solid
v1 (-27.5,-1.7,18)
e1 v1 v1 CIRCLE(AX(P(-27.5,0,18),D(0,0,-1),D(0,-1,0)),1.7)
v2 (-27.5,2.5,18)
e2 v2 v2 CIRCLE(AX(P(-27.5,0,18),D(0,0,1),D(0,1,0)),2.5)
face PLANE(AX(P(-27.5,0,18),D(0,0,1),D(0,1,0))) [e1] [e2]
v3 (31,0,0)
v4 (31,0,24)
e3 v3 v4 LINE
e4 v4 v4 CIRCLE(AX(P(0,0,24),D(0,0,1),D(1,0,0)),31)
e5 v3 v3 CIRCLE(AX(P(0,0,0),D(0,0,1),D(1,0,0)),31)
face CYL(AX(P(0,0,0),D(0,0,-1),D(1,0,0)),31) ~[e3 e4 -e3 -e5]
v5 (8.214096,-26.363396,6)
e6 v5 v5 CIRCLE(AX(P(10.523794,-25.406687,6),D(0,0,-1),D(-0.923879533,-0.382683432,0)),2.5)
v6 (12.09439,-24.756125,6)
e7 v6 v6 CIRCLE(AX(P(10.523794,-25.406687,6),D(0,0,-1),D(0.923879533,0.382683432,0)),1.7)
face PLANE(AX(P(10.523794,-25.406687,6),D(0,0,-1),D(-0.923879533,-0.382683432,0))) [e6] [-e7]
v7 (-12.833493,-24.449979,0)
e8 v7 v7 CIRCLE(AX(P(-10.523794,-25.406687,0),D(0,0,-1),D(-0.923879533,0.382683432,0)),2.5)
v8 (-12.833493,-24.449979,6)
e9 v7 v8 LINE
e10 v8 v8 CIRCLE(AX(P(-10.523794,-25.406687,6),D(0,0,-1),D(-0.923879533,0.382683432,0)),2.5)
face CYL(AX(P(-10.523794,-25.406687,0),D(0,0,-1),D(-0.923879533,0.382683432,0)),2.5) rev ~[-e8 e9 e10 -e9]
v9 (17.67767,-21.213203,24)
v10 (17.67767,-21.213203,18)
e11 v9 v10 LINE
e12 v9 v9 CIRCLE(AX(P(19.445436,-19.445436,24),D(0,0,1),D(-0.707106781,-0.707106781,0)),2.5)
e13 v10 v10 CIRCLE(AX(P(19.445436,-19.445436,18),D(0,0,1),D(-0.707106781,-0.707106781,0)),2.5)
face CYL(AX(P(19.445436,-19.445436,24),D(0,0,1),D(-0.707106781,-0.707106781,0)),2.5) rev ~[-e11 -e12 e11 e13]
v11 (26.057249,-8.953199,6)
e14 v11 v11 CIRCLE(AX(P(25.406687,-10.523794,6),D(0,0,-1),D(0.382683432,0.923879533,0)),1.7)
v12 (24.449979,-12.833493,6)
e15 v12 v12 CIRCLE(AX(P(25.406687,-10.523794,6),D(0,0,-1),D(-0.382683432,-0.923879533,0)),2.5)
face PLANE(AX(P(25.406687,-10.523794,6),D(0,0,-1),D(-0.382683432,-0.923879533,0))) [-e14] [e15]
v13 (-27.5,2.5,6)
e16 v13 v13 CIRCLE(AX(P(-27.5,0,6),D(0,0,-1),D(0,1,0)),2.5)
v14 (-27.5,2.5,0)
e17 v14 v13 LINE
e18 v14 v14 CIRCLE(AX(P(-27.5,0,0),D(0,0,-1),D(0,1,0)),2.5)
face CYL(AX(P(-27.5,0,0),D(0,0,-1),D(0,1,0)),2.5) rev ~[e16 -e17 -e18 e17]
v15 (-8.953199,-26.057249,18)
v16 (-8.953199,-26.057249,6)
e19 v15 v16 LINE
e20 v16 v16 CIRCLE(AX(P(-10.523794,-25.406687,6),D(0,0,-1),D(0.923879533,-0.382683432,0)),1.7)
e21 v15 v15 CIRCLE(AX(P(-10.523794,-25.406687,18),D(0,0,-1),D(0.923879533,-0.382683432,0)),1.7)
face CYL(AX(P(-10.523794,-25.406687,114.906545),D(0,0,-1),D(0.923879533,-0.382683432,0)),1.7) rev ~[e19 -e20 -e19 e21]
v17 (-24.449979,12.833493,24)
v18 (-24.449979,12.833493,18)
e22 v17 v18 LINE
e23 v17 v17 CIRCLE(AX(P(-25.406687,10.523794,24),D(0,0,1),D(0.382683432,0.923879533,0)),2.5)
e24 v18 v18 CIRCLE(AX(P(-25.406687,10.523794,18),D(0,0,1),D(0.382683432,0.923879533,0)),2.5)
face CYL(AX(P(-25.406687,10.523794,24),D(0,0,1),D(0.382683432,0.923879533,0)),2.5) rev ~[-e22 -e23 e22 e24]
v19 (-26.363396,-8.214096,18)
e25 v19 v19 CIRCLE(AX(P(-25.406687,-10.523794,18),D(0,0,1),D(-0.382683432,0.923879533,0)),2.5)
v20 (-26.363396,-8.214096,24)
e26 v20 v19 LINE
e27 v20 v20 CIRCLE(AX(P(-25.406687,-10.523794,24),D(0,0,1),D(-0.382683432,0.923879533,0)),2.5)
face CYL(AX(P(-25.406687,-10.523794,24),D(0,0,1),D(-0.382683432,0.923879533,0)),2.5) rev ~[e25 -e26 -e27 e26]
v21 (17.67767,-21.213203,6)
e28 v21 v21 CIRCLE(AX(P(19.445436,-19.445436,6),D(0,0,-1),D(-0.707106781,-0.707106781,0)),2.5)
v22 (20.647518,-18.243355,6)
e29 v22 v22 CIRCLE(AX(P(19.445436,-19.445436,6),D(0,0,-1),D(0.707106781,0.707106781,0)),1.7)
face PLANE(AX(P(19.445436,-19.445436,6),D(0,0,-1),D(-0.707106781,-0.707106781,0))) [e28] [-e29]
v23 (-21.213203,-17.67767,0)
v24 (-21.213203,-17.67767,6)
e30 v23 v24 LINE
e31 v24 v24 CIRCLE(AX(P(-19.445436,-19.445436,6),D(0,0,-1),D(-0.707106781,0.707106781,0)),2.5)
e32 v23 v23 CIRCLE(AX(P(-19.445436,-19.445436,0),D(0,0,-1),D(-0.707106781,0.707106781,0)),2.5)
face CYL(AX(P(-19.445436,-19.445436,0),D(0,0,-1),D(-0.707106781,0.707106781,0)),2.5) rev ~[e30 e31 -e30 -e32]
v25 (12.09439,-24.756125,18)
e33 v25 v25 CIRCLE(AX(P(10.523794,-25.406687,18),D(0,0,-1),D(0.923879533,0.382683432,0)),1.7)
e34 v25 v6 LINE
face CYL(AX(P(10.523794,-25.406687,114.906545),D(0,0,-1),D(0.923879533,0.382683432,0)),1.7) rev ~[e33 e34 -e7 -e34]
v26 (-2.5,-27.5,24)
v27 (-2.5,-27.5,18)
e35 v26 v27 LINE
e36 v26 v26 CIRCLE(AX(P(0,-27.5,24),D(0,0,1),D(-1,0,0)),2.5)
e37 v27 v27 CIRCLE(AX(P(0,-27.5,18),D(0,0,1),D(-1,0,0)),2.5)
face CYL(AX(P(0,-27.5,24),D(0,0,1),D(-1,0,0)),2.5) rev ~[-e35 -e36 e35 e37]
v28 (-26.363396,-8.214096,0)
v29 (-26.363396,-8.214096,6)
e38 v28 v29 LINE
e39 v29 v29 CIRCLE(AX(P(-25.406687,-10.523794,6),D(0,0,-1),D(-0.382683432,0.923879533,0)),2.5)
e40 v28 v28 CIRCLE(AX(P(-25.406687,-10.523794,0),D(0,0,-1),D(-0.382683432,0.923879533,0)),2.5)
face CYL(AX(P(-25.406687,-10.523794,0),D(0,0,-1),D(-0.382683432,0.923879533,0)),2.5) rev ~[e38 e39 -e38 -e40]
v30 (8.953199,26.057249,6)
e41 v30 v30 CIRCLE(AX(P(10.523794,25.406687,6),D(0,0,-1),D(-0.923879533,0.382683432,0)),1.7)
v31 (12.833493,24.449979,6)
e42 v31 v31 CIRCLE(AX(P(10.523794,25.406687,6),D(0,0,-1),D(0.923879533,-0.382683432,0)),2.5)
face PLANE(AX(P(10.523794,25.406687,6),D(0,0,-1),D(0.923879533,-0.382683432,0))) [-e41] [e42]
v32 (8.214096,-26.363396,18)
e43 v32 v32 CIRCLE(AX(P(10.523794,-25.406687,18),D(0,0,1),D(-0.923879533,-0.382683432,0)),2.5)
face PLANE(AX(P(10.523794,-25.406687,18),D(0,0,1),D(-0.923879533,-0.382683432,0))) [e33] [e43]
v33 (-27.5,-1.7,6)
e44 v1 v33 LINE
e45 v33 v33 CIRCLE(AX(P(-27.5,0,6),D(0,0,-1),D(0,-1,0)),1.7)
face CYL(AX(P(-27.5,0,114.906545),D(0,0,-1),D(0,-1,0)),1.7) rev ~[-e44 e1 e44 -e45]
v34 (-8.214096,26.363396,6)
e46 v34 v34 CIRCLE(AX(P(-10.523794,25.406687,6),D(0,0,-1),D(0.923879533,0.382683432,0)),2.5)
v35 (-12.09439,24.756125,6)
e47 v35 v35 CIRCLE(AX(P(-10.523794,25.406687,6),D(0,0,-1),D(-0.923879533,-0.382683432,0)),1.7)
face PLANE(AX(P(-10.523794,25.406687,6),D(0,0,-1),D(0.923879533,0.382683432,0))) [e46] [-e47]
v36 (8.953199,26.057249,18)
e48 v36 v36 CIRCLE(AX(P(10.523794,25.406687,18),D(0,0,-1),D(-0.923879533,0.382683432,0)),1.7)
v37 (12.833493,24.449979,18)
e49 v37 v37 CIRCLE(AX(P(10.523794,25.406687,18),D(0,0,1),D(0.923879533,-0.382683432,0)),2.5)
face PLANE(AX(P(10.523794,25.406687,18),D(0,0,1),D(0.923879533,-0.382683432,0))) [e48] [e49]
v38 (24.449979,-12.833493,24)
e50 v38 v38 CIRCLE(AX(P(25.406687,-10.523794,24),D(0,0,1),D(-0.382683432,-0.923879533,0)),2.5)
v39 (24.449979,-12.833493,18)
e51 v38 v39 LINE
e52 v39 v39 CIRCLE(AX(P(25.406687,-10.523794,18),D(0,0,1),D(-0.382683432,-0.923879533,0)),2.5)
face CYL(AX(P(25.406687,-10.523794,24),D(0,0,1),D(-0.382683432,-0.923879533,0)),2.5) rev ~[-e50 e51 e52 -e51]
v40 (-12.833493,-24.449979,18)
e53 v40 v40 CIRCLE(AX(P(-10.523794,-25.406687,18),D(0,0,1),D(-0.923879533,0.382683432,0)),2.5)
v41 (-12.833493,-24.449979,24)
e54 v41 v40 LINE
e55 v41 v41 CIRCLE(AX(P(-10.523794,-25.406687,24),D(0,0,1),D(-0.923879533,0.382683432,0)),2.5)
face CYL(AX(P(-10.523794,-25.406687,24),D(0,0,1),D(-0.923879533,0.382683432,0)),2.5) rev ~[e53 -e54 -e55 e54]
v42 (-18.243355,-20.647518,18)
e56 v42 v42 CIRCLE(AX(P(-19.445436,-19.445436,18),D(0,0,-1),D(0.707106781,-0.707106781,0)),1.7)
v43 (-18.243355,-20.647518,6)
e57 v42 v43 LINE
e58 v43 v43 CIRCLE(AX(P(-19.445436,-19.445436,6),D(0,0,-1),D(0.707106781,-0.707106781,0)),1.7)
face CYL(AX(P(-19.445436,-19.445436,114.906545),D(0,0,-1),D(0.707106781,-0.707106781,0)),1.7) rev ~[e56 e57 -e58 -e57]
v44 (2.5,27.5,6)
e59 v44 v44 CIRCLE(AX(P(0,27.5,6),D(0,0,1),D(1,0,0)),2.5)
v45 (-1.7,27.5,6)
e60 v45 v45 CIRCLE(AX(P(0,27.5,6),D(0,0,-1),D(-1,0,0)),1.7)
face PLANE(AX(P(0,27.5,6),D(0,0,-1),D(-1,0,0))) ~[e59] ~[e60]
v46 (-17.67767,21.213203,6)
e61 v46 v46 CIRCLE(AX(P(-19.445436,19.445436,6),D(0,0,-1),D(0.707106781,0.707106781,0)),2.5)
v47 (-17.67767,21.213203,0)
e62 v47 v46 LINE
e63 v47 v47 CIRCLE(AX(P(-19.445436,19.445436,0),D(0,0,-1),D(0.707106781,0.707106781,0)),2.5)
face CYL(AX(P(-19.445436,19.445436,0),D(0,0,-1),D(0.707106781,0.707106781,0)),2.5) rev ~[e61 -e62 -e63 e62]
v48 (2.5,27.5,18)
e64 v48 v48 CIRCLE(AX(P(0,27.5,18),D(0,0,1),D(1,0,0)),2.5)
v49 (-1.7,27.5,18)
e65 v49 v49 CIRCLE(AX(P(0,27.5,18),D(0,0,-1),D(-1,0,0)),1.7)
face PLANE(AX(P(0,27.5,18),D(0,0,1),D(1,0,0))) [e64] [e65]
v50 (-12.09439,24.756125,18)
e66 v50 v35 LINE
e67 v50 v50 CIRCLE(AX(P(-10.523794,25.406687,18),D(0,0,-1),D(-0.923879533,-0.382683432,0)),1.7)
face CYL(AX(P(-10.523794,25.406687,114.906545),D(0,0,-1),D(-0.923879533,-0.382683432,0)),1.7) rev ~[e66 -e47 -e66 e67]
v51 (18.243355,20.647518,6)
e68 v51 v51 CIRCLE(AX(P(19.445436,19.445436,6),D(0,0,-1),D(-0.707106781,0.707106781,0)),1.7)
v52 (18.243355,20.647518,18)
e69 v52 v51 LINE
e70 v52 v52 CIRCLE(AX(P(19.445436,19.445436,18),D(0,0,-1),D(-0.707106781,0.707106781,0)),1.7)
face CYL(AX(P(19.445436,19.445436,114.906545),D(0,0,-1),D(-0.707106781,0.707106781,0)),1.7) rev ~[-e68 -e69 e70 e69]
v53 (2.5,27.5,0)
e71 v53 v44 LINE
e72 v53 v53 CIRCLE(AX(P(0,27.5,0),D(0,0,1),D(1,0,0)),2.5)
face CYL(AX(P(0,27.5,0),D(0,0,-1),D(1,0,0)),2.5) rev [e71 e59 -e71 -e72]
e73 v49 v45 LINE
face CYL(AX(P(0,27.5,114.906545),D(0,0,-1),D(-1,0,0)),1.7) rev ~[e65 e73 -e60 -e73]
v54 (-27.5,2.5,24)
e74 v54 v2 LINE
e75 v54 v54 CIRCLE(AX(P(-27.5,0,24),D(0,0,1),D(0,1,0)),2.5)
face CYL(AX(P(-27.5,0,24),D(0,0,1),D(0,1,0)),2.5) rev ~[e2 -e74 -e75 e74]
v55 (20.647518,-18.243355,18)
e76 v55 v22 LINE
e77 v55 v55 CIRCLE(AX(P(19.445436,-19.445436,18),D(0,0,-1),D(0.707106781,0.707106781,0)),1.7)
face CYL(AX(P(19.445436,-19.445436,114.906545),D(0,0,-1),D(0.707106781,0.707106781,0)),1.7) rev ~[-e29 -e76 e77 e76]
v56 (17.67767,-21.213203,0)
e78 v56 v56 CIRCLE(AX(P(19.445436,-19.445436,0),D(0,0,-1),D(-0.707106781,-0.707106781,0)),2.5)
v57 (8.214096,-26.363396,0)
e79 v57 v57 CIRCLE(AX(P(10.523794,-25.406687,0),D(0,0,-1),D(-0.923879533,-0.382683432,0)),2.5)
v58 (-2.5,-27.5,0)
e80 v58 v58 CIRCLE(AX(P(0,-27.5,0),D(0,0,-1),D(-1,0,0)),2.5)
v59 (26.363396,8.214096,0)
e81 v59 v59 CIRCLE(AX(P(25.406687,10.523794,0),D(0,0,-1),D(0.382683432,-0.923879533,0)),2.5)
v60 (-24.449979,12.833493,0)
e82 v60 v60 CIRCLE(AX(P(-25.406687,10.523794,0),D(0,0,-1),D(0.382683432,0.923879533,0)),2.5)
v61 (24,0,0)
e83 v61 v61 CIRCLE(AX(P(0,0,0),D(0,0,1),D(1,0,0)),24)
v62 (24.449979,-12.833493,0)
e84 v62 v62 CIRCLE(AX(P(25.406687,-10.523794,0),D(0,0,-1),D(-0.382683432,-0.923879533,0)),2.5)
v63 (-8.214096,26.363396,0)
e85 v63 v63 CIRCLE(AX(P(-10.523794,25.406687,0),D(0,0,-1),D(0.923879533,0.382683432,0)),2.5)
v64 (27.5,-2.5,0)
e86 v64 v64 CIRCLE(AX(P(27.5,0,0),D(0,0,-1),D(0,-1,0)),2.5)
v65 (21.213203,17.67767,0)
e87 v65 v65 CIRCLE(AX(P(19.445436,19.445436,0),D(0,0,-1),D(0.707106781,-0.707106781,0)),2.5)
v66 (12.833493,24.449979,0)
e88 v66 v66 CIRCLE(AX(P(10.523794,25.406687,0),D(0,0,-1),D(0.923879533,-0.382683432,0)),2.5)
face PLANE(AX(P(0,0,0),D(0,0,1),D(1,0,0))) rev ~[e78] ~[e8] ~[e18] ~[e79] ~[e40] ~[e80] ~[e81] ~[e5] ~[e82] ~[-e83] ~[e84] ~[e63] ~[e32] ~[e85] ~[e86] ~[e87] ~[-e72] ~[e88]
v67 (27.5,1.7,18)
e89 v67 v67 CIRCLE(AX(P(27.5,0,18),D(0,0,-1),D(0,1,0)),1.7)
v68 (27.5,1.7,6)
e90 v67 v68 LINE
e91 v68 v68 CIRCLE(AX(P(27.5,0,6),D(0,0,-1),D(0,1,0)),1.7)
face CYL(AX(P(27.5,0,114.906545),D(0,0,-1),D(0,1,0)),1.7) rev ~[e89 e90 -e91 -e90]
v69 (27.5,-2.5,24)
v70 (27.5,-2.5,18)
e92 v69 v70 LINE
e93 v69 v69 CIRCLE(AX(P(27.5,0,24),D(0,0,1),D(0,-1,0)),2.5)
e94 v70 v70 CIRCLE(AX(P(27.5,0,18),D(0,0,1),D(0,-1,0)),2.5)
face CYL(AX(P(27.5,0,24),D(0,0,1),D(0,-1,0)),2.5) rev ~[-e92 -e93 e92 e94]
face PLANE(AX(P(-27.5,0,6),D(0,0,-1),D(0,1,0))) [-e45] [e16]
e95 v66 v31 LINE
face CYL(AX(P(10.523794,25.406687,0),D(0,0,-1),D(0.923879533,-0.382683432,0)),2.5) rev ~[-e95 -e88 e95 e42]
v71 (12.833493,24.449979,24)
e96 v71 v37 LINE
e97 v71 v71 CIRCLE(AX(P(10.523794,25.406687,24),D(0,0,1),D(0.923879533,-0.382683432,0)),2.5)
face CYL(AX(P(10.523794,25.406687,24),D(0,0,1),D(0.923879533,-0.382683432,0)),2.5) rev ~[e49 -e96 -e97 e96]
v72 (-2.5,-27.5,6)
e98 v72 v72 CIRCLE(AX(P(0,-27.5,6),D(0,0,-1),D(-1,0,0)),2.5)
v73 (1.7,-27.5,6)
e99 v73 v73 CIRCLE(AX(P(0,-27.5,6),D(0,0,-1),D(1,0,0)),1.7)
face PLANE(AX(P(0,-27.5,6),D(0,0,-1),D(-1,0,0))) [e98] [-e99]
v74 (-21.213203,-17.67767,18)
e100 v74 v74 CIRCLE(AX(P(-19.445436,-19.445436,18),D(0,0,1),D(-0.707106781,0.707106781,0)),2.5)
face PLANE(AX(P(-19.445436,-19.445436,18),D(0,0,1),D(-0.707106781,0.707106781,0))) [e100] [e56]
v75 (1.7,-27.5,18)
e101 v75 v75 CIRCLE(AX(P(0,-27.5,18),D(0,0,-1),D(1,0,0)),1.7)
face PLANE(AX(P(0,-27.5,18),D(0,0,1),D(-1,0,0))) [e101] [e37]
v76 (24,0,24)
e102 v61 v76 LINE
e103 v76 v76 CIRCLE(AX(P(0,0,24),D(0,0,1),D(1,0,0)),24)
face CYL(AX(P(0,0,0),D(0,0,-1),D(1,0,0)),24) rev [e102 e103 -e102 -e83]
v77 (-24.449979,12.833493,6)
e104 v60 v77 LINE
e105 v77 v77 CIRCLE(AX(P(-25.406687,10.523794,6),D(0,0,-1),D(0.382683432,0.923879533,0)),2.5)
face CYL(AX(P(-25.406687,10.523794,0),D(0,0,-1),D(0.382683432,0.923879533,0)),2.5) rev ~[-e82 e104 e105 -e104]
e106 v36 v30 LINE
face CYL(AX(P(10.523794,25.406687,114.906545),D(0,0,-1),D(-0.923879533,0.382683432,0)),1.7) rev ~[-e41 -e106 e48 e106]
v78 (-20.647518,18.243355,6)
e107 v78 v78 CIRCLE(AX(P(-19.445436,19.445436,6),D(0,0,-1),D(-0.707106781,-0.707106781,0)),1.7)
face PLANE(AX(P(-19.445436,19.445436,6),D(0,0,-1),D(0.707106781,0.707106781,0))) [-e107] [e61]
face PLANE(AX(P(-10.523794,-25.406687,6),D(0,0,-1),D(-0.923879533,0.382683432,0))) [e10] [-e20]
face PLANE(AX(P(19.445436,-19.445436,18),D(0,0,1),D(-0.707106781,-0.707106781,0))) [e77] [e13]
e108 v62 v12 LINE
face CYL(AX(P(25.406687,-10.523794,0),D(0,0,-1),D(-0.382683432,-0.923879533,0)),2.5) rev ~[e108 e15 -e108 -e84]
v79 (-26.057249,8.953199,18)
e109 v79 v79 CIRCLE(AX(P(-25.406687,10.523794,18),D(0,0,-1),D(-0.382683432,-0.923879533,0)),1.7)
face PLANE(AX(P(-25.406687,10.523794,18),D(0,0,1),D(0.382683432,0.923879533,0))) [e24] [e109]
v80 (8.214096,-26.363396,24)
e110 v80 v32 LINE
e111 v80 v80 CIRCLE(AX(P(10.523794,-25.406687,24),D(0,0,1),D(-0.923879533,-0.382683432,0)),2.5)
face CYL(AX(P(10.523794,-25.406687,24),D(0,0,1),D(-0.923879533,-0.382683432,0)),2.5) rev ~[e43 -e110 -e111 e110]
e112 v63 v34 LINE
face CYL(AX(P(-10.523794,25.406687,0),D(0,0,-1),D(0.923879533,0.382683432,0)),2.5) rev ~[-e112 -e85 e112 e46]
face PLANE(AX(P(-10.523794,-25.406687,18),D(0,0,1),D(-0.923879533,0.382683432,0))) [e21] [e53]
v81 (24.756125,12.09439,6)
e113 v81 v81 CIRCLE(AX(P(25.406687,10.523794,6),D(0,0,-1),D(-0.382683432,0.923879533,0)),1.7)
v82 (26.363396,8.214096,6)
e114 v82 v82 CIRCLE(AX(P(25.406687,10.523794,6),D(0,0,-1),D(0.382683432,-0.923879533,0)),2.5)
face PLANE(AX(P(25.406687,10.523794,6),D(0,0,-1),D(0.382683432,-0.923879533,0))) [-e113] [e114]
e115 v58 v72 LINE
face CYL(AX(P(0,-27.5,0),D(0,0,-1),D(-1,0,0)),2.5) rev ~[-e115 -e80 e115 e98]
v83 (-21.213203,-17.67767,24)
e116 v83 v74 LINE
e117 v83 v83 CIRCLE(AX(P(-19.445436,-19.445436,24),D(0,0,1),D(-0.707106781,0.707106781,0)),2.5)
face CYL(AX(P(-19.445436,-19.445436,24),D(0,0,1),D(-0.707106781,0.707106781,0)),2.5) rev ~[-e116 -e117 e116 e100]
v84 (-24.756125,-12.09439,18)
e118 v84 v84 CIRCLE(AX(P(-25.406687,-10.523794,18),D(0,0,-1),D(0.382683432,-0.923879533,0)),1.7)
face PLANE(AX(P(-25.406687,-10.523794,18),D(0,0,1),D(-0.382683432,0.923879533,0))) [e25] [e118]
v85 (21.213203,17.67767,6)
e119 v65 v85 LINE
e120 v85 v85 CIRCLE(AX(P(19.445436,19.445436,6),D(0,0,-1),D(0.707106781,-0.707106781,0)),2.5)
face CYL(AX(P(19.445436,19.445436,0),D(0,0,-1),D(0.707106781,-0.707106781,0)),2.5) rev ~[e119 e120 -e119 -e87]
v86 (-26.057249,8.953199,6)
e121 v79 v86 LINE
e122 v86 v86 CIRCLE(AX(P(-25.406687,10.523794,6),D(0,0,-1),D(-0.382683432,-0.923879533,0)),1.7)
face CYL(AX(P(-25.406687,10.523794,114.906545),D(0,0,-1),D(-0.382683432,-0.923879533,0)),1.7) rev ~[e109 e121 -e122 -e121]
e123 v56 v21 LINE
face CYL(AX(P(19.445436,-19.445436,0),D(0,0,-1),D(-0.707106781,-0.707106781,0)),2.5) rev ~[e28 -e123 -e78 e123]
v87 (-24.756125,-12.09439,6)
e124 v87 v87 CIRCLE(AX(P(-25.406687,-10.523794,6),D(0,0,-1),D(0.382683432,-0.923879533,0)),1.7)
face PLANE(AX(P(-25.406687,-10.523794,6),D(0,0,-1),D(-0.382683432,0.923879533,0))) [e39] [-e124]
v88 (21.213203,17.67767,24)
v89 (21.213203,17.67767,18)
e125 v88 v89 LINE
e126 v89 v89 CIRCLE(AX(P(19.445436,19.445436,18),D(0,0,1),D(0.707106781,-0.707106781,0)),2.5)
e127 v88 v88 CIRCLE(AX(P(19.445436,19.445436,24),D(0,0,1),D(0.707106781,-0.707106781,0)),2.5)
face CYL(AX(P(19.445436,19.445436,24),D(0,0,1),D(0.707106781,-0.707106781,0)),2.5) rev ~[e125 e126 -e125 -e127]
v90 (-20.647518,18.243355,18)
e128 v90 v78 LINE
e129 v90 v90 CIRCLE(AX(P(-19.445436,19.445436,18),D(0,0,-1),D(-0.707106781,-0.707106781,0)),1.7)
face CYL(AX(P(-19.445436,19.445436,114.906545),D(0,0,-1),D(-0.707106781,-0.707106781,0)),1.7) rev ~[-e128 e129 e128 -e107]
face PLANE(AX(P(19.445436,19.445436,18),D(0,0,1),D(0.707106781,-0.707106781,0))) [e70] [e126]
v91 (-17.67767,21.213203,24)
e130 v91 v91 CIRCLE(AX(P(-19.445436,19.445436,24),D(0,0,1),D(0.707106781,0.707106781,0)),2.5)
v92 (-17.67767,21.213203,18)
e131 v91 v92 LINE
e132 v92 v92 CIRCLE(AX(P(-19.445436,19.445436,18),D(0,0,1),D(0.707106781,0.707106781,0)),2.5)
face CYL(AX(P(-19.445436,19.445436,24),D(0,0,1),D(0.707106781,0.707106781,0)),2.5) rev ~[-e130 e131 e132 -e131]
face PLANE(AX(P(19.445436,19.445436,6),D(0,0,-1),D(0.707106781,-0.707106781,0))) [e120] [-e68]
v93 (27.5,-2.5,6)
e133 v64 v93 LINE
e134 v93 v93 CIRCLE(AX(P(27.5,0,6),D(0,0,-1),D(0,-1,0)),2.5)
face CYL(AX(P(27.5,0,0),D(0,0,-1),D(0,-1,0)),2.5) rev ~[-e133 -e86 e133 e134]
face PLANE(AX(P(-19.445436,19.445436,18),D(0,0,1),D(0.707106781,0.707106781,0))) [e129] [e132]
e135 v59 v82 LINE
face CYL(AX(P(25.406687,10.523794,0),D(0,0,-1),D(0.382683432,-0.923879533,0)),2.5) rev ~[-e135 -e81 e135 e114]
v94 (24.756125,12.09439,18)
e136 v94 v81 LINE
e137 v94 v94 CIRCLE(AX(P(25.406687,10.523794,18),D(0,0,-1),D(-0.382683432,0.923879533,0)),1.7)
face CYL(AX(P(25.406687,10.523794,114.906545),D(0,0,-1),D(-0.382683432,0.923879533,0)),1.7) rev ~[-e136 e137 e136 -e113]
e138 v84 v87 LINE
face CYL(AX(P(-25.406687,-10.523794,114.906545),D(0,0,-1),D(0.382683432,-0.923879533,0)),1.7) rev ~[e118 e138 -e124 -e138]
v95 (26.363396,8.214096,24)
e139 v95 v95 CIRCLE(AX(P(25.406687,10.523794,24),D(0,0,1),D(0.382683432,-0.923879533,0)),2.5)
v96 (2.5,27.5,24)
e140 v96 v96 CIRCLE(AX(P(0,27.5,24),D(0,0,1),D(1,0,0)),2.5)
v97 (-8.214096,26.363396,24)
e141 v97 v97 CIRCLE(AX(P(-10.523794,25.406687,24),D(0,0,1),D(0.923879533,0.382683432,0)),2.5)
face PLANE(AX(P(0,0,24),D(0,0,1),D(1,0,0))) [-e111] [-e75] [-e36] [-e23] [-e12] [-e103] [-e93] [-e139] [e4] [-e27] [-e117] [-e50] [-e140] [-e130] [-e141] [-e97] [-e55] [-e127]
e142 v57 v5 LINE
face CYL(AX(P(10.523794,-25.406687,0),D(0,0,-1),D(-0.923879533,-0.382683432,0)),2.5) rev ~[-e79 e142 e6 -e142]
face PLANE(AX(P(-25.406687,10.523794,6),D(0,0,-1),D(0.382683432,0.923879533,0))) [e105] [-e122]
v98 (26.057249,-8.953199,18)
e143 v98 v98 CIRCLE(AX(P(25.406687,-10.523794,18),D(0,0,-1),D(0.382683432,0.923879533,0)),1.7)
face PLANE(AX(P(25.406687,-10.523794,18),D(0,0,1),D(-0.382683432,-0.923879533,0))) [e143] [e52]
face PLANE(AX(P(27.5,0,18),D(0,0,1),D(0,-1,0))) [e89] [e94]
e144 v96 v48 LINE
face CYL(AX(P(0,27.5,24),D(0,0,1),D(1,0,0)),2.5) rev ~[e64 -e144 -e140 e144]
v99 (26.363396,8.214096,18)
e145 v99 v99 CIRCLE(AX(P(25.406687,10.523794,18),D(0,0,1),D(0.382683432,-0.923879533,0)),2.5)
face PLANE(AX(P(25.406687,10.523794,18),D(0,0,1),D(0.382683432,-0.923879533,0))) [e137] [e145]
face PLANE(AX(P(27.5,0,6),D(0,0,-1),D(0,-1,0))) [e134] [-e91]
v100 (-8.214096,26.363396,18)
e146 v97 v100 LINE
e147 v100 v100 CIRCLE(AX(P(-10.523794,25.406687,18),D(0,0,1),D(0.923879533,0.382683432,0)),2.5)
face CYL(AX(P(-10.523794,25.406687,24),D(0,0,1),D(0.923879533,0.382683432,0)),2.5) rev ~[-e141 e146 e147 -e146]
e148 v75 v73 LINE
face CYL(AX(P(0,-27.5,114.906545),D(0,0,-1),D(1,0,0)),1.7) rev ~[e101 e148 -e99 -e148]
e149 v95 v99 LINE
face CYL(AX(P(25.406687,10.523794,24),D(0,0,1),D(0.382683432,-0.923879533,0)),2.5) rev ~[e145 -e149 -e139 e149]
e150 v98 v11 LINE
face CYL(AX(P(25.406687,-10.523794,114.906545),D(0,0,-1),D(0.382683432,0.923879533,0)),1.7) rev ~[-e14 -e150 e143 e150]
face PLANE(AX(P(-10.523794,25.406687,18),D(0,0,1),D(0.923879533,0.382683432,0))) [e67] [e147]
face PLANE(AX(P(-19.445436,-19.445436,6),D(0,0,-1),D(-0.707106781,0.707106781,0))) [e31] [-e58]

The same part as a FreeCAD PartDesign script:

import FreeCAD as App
import Part
import Sketcher
from FreeCAD import Vector

doc = App.newDocument("Part")
body = doc.addObject("PartDesign::Body", "Body")

# Sketch on XY plane
sketch1 = body.newObject("Sketcher::SketchObject", "Sketch")
sketch1.AttachmentSupport = (doc.getObject("XY_Plane"), [""])
sketch1.MapMode = "FlatFace"
sketch1.addGeometry([
    Part.Circle(Vector(0, 0, 0), Vector(0, 0, 1), 31),
    Part.Circle(Vector(0, 0, 0), Vector(0, 0, 1), 24),
], False)
sketch1.addConstraint([
    Sketcher.Constraint("Coincident", 0, 3, -1, 1),
    Sketcher.Constraint("Coincident", 1, 3, -1, 1),
    Sketcher.Constraint("Diameter", 0, 62.0),
    Sketcher.Constraint("Diameter", 1, 48.0),
])
pad1 = body.newObject("PartDesign::Pad", "Pad")
pad1.Profile = sketch1
pad1.Length = 24

# Sketch on XY plane
sketch2 = body.newObject("Sketcher::SketchObject", "Sketch001")
sketch2.AttachmentSupport = (doc.getObject("XY_Plane"), [""])
sketch2.MapMode = "FlatFace"
sketch2.AttachmentOffset = App.Placement(Vector(0, 0, 24), App.Rotation())
sketch2.addGeometry(Part.Circle(Vector(0, 27.5, 0), Vector(0, 0, 1), 1.7), False)
sketch2.addConstraint([
    Sketcher.Constraint("PointOnObject", 0, 3, -2),
    Sketcher.Constraint("Diameter", 0, 3.4),
    Sketcher.Constraint("DistanceY", -1, 1, 0, 3, 27.5),
])
doc.recompute()
hole = body.newObject("PartDesign::Hole", "Hole")
hole.Profile = sketch2
hole.ThreadType = "None"
hole.Diameter = 3.4
hole.DepthType = "ThroughAll"

# Sketch on XY plane
sketch3 = body.newObject("Sketcher::SketchObject", "Sketch002")
sketch3.AttachmentSupport = (doc.getObject("XY_Plane"), [""])
sketch3.MapMode = "FlatFace"
sketch3.AttachmentOffset = App.Placement(Vector(0, 0, 24), App.Rotation())
sketch3.addGeometry(Part.Circle(Vector(0, 27.5, 0), Vector(0, 0, 1), 2.5), False)
sketch3.addConstraint([
    Sketcher.Constraint("PointOnObject", 0, 3, -2),
    Sketcher.Constraint("Diameter", 0, 5.0),
    Sketcher.Constraint("DistanceY", -1, 1, 0, 3, 27.5),
])
pocket1 = body.newObject("PartDesign::Pocket", "Pocket")
pocket1.Profile = sketch3
pocket1.Length = 6
doc.recompute()

polarpattern = body.newObject("PartDesign::PolarPattern", "PolarPattern")
polarpattern.Originals = [hole, pocket1]
polarpattern.Axis = (doc.getObject("Z_Axis"), [""])
polarpattern.Angle = 360
polarpattern.Occurrences = 16
body.Tip = polarpattern
doc.recompute()

datumplane = body.newObject("PartDesign::Plane", "DatumPlane")
datumplane.AttachmentSupport = (doc.getObject("XY_Plane"), [""])
datumplane.MapMode = "FlatFace"
datumplane.AttachmentOffset = App.Placement(Vector(0, 0, 12), App.Rotation())
mirrored = body.newObject("PartDesign::Mirrored", "Mirrored")
mirrored.Originals = [pocket1]
mirrored.MirrorPlane = (datumplane, [""])
body.Tip = mirrored

# Sketch on XY plane
sketch4 = body.newObject("Sketcher::SketchObject", "Sketch003")
sketch4.AttachmentSupport = (doc.getObject("XY_Plane"), [""])
sketch4.MapMode = "FlatFace"
sketch4.addGeometry(Part.Circle(Vector(-10.5, 25.4, 0), Vector(0, 0, 1), 1.7), False)
sketch4.addConstraint([
    Sketcher.Constraint("Diameter", 0, 3.4),
    Sketcher.Constraint("DistanceX", 0, 3, -1, 1, 10.523794),
    Sketcher.Constraint("DistanceY", -1, 1, 0, 3, 25.406687),
])
doc.recompute()
hole2 = body.newObject("PartDesign::Hole", "Hole001")
hole2.Profile = sketch4
hole2.ThreadType = "None"
hole2.Diameter = 3.4
hole2.DepthType = "ThroughAll"
hole2.Reversed = True

# Sketch on XY plane
sketch5 = body.newObject("Sketcher::SketchObject", "Sketch004")
sketch5.AttachmentSupport = (doc.getObject("XY_Plane"), [""])
sketch5.MapMode = "FlatFace"
sketch5.addGeometry(Part.Circle(Vector(-19.4, 19.4, 0), Vector(0, 0, 1), 1.7), False)
sketch5.addConstraint([
    Sketcher.Constraint("Diameter", 0, 3.4),
    Sketcher.Constraint("DistanceX", 0, 3, -1, 1, 19.445436),
    Sketcher.Constraint("DistanceY", -1, 1, 0, 3, 19.445436),
])
doc.recompute()
hole3 = body.newObject("PartDesign::Hole", "Hole002")
hole3.Profile = sketch5
hole3.ThreadType = "None"
hole3.Diameter = 3.4
hole3.DepthType = "ThroughAll"
hole3.Reversed = True

# Sketch on XY plane
sketch6 = body.newObject("Sketcher::SketchObject", "Sketch005")
sketch6.AttachmentSupport = (doc.getObject("XY_Plane"), [""])
sketch6.MapMode = "FlatFace"
sketch6.addGeometry(Part.Circle(Vector(-25.4, 10.5, 0), Vector(0, 0, 1), 1.7), False)
sketch6.addConstraint([
    Sketcher.Constraint("Diameter", 0, 3.4),
    Sketcher.Constraint("DistanceX", 0, 3, -1, 1, 25.406687),
    Sketcher.Constraint("DistanceY", -1, 1, 0, 3, 10.523794),
])
doc.recompute()
hole4 = body.newObject("PartDesign::Hole", "Hole003")
hole4.Profile = sketch6
hole4.ThreadType = "None"
hole4.Diameter = 3.4
hole4.DepthType = "ThroughAll"
hole4.Reversed = True

# Sketch on XY plane
sketch7 = body.newObject("Sketcher::SketchObject", "Sketch006")
sketch7.AttachmentSupport = (doc.getObject("XY_Plane"), [""])
sketch7.MapMode = "FlatFace"
sketch7.addGeometry(Part.Circle(Vector(-27.5, 0, 0), Vector(0, 0, 1), 1.7), False)
sketch7.addConstraint([
    Sketcher.Constraint("PointOnObject", 0, 3, -1),
    Sketcher.Constraint("Diameter", 0, 3.4),
    Sketcher.Constraint("DistanceX", 0, 3, -1, 1, 27.5),
])
doc.recompute()
hole5 = body.newObject("PartDesign::Hole", "Hole004")
hole5.Profile = sketch7
hole5.ThreadType = "None"
hole5.Diameter = 3.4
hole5.DepthType = "ThroughAll"
hole5.Reversed = True

# Sketch on XY plane
sketch8 = body.newObject("Sketcher::SketchObject", "Sketch007")
sketch8.AttachmentSupport = (doc.getObject("XY_Plane"), [""])
sketch8.MapMode = "FlatFace"
sketch8.addGeometry(Part.Circle(Vector(-25.4, -10.5, 0), Vector(0, 0, 1), 1.7), False)
sketch8.addConstraint([
    Sketcher.Constraint("Diameter", 0, 3.4),
    Sketcher.Constraint("DistanceX", 0, 3, -1, 1, 25.406687),
    Sketcher.Constraint("DistanceY", 0, 3, -1, 1, 10.523794),
])
doc.recompute()
hole6 = body.newObject("PartDesign::Hole", "Hole005")
hole6.Profile = sketch8
hole6.ThreadType = "None"
hole6.Diameter = 3.4
hole6.DepthType = "ThroughAll"
hole6.Reversed = True

# Sketch on XY plane
sketch9 = body.newObject("Sketcher::SketchObject", "Sketch008")
sketch9.AttachmentSupport = (doc.getObject("XY_Plane"), [""])
sketch9.MapMode = "FlatFace"
sketch9.addGeometry(Part.Circle(Vector(-19.4, -19.4, 0), Vector(0, 0, 1), 1.7), False)
sketch9.addConstraint([
    Sketcher.Constraint("Diameter", 0, 3.4),
    Sketcher.Constraint("DistanceX", 0, 3, -1, 1, 19.445436),
    Sketcher.Constraint("DistanceY", 0, 3, -1, 1, 19.445436),
])
doc.recompute()
hole7 = body.newObject("PartDesign::Hole", "Hole006")
hole7.Profile = sketch9
hole7.ThreadType = "None"
hole7.Diameter = 3.4
hole7.DepthType = "ThroughAll"
hole7.Reversed = True

# Sketch on XY plane
sketch10 = body.newObject("Sketcher::SketchObject", "Sketch009")
sketch10.AttachmentSupport = (doc.getObject("XY_Plane"), [""])
sketch10.MapMode = "FlatFace"
sketch10.addGeometry(Part.Circle(Vector(-10.5, -25.4, 0), Vector(0, 0, 1), 1.7), False)
sketch10.addConstraint([
    Sketcher.Constraint("Diameter", 0, 3.4),
    Sketcher.Constraint("DistanceX", 0, 3, -1, 1, 10.523794),
    Sketcher.Constraint("DistanceY", 0, 3, -1, 1, 25.406687),
])
doc.recompute()
hole8 = body.newObject("PartDesign::Hole", "Hole007")
hole8.Profile = sketch10
hole8.ThreadType = "None"
hole8.Diameter = 3.4
hole8.DepthType = "ThroughAll"
hole8.Reversed = True

# Sketch on XY plane
sketch11 = body.newObject("Sketcher::SketchObject", "Sketch010")
sketch11.AttachmentSupport = (doc.getObject("XY_Plane"), [""])
sketch11.MapMode = "FlatFace"
sketch11.addGeometry(Part.Circle(Vector(0, -27.5, 0), Vector(0, 0, 1), 1.7), False)
sketch11.addConstraint([
    Sketcher.Constraint("PointOnObject", 0, 3, -2),
    Sketcher.Constraint("Diameter", 0, 3.4),
    Sketcher.Constraint("DistanceY", 0, 3, -1, 1, 27.5),
])
doc.recompute()
hole9 = body.newObject("PartDesign::Hole", "Hole008")
hole9.Profile = sketch11
hole9.ThreadType = "None"
hole9.Diameter = 3.4
hole9.DepthType = "ThroughAll"
hole9.Reversed = True

# Sketch on XY plane
sketch12 = body.newObject("Sketcher::SketchObject", "Sketch011")
sketch12.AttachmentSupport = (doc.getObject("XY_Plane"), [""])
sketch12.MapMode = "FlatFace"
sketch12.addGeometry(Part.Circle(Vector(10.5, -25.4, 0), Vector(0, 0, 1), 1.7), False)
sketch12.addConstraint([
    Sketcher.Constraint("Diameter", 0, 3.4),
    Sketcher.Constraint("DistanceX", -1, 1, 0, 3, 10.523794),
    Sketcher.Constraint("DistanceY", 0, 3, -1, 1, 25.406687),
])
doc.recompute()
hole10 = body.newObject("PartDesign::Hole", "Hole009")
hole10.Profile = sketch12
hole10.ThreadType = "None"
hole10.Diameter = 3.4
hole10.DepthType = "ThroughAll"
hole10.Reversed = True

# Sketch on XY plane
sketch13 = body.newObject("Sketcher::SketchObject", "Sketch012")
sketch13.AttachmentSupport = (doc.getObject("XY_Plane"), [""])
sketch13.MapMode = "FlatFace"
sketch13.addGeometry(Part.Circle(Vector(19.4, -19.4, 0), Vector(0, 0, 1), 1.7), False)
sketch13.addConstraint([
    Sketcher.Constraint("Diameter", 0, 3.4),
    Sketcher.Constraint("DistanceX", -1, 1, 0, 3, 19.445436),
    Sketcher.Constraint("DistanceY", 0, 3, -1, 1, 19.445436),
])
doc.recompute()
hole11 = body.newObject("PartDesign::Hole", "Hole010")
hole11.Profile = sketch13
hole11.ThreadType = "None"
hole11.Diameter = 3.4
hole11.DepthType = "ThroughAll"
hole11.Reversed = True

# Sketch on XY plane
sketch14 = body.newObject("Sketcher::SketchObject", "Sketch013")
sketch14.AttachmentSupport = (doc.getObject("XY_Plane"), [""])
sketch14.MapMode = "FlatFace"
sketch14.addGeometry(Part.Circle(Vector(25.4, -10.5, 0), Vector(0, 0, 1), 1.7), False)
sketch14.addConstraint([
    Sketcher.Constraint("Diameter", 0, 3.4),
    Sketcher.Constraint("DistanceX", -1, 1, 0, 3, 25.406687),
    Sketcher.Constraint("DistanceY", 0, 3, -1, 1, 10.523794),
])
doc.recompute()
hole12 = body.newObject("PartDesign::Hole", "Hole011")
hole12.Profile = sketch14
hole12.ThreadType = "None"
hole12.Diameter = 3.4
hole12.DepthType = "ThroughAll"
hole12.Reversed = True

# Sketch on XY plane
sketch15 = body.newObject("Sketcher::SketchObject", "Sketch014")
sketch15.AttachmentSupport = (doc.getObject("XY_Plane"), [""])
sketch15.MapMode = "FlatFace"
sketch15.addGeometry(Part.Circle(Vector(27.5, 0, 0), Vector(0, 0, 1), 1.7), False)
sketch15.addConstraint([
    Sketcher.Constraint("PointOnObject", 0, 3, -1),
    Sketcher.Constraint("Diameter", 0, 3.4),
    Sketcher.Constraint("DistanceX", -1, 1, 0, 3, 27.5),
])
doc.recompute()
hole13 = body.newObject("PartDesign::Hole", "Hole012")
hole13.Profile = sketch15
hole13.ThreadType = "None"
hole13.Diameter = 3.4
hole13.DepthType = "ThroughAll"
hole13.Reversed = True

# Sketch on XY plane
sketch16 = body.newObject("Sketcher::SketchObject", "Sketch015")
sketch16.AttachmentSupport = (doc.getObject("XY_Plane"), [""])
sketch16.MapMode = "FlatFace"
sketch16.addGeometry(Part.Circle(Vector(25.4, 10.5, 0), Vector(0, 0, 1), 1.7), False)
sketch16.addConstraint([
    Sketcher.Constraint("Diameter", 0, 3.4),
    Sketcher.Constraint("DistanceX", -1, 1, 0, 3, 25.406687),
    Sketcher.Constraint("DistanceY", -1, 1, 0, 3, 10.523794),
])
doc.recompute()
hole14 = body.newObject("PartDesign::Hole", "Hole013")
hole14.Profile = sketch16
hole14.ThreadType = "None"
hole14.Diameter = 3.4
hole14.DepthType = "ThroughAll"
hole14.Reversed = True

# Sketch on XY plane
sketch17 = body.newObject("Sketcher::SketchObject", "Sketch016")
sketch17.AttachmentSupport = (doc.getObject("XY_Plane"), [""])
sketch17.MapMode = "FlatFace"
sketch17.addGeometry(Part.Circle(Vector(19.4, 19.4, 0), Vector(0, 0, 1), 1.7), False)
sketch17.addConstraint([
    Sketcher.Constraint("Diameter", 0, 3.4),
    Sketcher.Constraint("DistanceX", -1, 1, 0, 3, 19.445436),
    Sketcher.Constraint("DistanceY", -1, 1, 0, 3, 19.445436),
])
doc.recompute()
hole15 = body.newObject("PartDesign::Hole", "Hole014")
hole15.Profile = sketch17
hole15.ThreadType = "None"
hole15.Diameter = 3.4
hole15.DepthType = "ThroughAll"
hole15.Reversed = True

# Sketch on XY plane
sketch18 = body.newObject("Sketcher::SketchObject", "Sketch017")
sketch18.AttachmentSupport = (doc.getObject("XY_Plane"), [""])
sketch18.MapMode = "FlatFace"
sketch18.addGeometry(Part.Circle(Vector(10.5, 25.4, 0), Vector(0, 0, 1), 1.7), False)
sketch18.addConstraint([
    Sketcher.Constraint("Diameter", 0, 3.4),
    Sketcher.Constraint("DistanceX", -1, 1, 0, 3, 10.523794),
    Sketcher.Constraint("DistanceY", -1, 1, 0, 3, 25.406687),
])
doc.recompute()
hole16 = body.newObject("PartDesign::Hole", "Hole015")
hole16.Profile = sketch18
hole16.ThreadType = "None"
hole16.Diameter = 3.4
hole16.DepthType = "ThroughAll"
hole16.Reversed = True

# Sketch on XY plane
sketch19 = body.newObject("Sketcher::SketchObject", "Sketch018")
sketch19.AttachmentSupport = (doc.getObject("XY_Plane"), [""])
sketch19.MapMode = "FlatFace"
sketch19.addGeometry(Part.Circle(Vector(-10.5, 25.4, 0), Vector(0, 0, 1), 2.5), False)
sketch19.addConstraint([
    Sketcher.Constraint("Diameter", 0, 5.0),
    Sketcher.Constraint("DistanceX", 0, 3, -1, 1, 10.523794),
    Sketcher.Constraint("DistanceY", -1, 1, 0, 3, 25.406687),
])
pocket2 = body.newObject("PartDesign::Pocket", "Pocket001")
pocket2.Profile = sketch19
pocket2.Length = 6
pocket2.Reversed = True

# Sketch on XY plane
sketch20 = body.newObject("Sketcher::SketchObject", "Sketch019")
sketch20.AttachmentSupport = (doc.getObject("XY_Plane"), [""])
sketch20.MapMode = "FlatFace"
sketch20.addGeometry(Part.Circle(Vector(-19.4, 19.4, 0), Vector(0, 0, 1), 2.5), False)
sketch20.addConstraint([
    Sketcher.Constraint("Diameter", 0, 5.0),
    Sketcher.Constraint("DistanceX", 0, 3, -1, 1, 19.445436),
    Sketcher.Constraint("DistanceY", -1, 1, 0, 3, 19.445436),
])
pocket3 = body.newObject("PartDesign::Pocket", "Pocket002")
pocket3.Profile = sketch20
pocket3.Length = 6
pocket3.Reversed = True

# Sketch on XY plane
sketch21 = body.newObject("Sketcher::SketchObject", "Sketch020")
sketch21.AttachmentSupport = (doc.getObject("XY_Plane"), [""])
sketch21.MapMode = "FlatFace"
sketch21.addGeometry(Part.Circle(Vector(-25.4, 10.5, 0), Vector(0, 0, 1), 2.5), False)
sketch21.addConstraint([
    Sketcher.Constraint("Diameter", 0, 5.0),
    Sketcher.Constraint("DistanceX", 0, 3, -1, 1, 25.406687),
    Sketcher.Constraint("DistanceY", -1, 1, 0, 3, 10.523794),
])
pocket4 = body.newObject("PartDesign::Pocket", "Pocket003")
pocket4.Profile = sketch21
pocket4.Length = 6
pocket4.Reversed = True

# Sketch on XY plane
sketch22 = body.newObject("Sketcher::SketchObject", "Sketch021")
sketch22.AttachmentSupport = (doc.getObject("XY_Plane"), [""])
sketch22.MapMode = "FlatFace"
sketch22.addGeometry(Part.Circle(Vector(-27.5, 0, 0), Vector(0, 0, 1), 2.5), False)
sketch22.addConstraint([
    Sketcher.Constraint("PointOnObject", 0, 3, -1),
    Sketcher.Constraint("Diameter", 0, 5.0),
    Sketcher.Constraint("DistanceX", 0, 3, -1, 1, 27.5),
])
pocket5 = body.newObject("PartDesign::Pocket", "Pocket004")
pocket5.Profile = sketch22
pocket5.Length = 6
pocket5.Reversed = True

# Sketch on XY plane
sketch23 = body.newObject("Sketcher::SketchObject", "Sketch022")
sketch23.AttachmentSupport = (doc.getObject("XY_Plane"), [""])
sketch23.MapMode = "FlatFace"
sketch23.addGeometry(Part.Circle(Vector(-25.4, -10.5, 0), Vector(0, 0, 1), 2.5), False)
sketch23.addConstraint([
    Sketcher.Constraint("Diameter", 0, 5.0),
    Sketcher.Constraint("DistanceX", 0, 3, -1, 1, 25.406687),
    Sketcher.Constraint("DistanceY", 0, 3, -1, 1, 10.523794),
])
pocket6 = body.newObject("PartDesign::Pocket", "Pocket005")
pocket6.Profile = sketch23
pocket6.Length = 6
pocket6.Reversed = True

# Sketch on XY plane
sketch24 = body.newObject("Sketcher::SketchObject", "Sketch023")
sketch24.AttachmentSupport = (doc.getObject("XY_Plane"), [""])
sketch24.MapMode = "FlatFace"
sketch24.addGeometry(Part.Circle(Vector(-19.4, -19.4, 0), Vector(0, 0, 1), 2.5), False)
sketch24.addConstraint([
    Sketcher.Constraint("Diameter", 0, 5.0),
    Sketcher.Constraint("DistanceX", 0, 3, -1, 1, 19.445436),
    Sketcher.Constraint("DistanceY", 0, 3, -1, 1, 19.445436),
])
pocket7 = body.newObject("PartDesign::Pocket", "Pocket006")
pocket7.Profile = sketch24
pocket7.Length = 6
pocket7.Reversed = True

# Sketch on XY plane
sketch25 = body.newObject("Sketcher::SketchObject", "Sketch024")
sketch25.AttachmentSupport = (doc.getObject("XY_Plane"), [""])
sketch25.MapMode = "FlatFace"
sketch25.addGeometry(Part.Circle(Vector(-10.5, -25.4, 0), Vector(0, 0, 1), 2.5), False)
sketch25.addConstraint([
    Sketcher.Constraint("Diameter", 0, 5.0),
    Sketcher.Constraint("DistanceX", 0, 3, -1, 1, 10.523794),
    Sketcher.Constraint("DistanceY", 0, 3, -1, 1, 25.406687),
])
pocket8 = body.newObject("PartDesign::Pocket", "Pocket007")
pocket8.Profile = sketch25
pocket8.Length = 6
pocket8.Reversed = True

# Sketch on XY plane
sketch26 = body.newObject("Sketcher::SketchObject", "Sketch025")
sketch26.AttachmentSupport = (doc.getObject("XY_Plane"), [""])
sketch26.MapMode = "FlatFace"
sketch26.addGeometry(Part.Circle(Vector(0, -27.5, 0), Vector(0, 0, 1), 2.5), False)
sketch26.addConstraint([
    Sketcher.Constraint("PointOnObject", 0, 3, -2),
    Sketcher.Constraint("Diameter", 0, 5.0),
    Sketcher.Constraint("DistanceY", 0, 3, -1, 1, 27.5),
])
pocket9 = body.newObject("PartDesign::Pocket", "Pocket008")
pocket9.Profile = sketch26
pocket9.Length = 6
pocket9.Reversed = True

# Sketch on XY plane
sketch27 = body.newObject("Sketcher::SketchObject", "Sketch026")
sketch27.AttachmentSupport = (doc.getObject("XY_Plane"), [""])
sketch27.MapMode = "FlatFace"
sketch27.addGeometry(Part.Circle(Vector(10.5, -25.4, 0), Vector(0, 0, 1), 2.5), False)
sketch27.addConstraint([
    Sketcher.Constraint("Diameter", 0, 5.0),
    Sketcher.Constraint("DistanceX", -1, 1, 0, 3, 10.523794),
    Sketcher.Constraint("DistanceY", 0, 3, -1, 1, 25.406687),
])
pocket10 = body.newObject("PartDesign::Pocket", "Pocket009")
pocket10.Profile = sketch27
pocket10.Length = 6
pocket10.Reversed = True

# Sketch on XY plane
sketch28 = body.newObject("Sketcher::SketchObject", "Sketch027")
sketch28.AttachmentSupport = (doc.getObject("XY_Plane"), [""])
sketch28.MapMode = "FlatFace"
sketch28.addGeometry(Part.Circle(Vector(19.4, -19.4, 0), Vector(0, 0, 1), 2.5), False)
sketch28.addConstraint([
    Sketcher.Constraint("Diameter", 0, 5.0),
    Sketcher.Constraint("DistanceX", -1, 1, 0, 3, 19.445436),
    Sketcher.Constraint("DistanceY", 0, 3, -1, 1, 19.445436),
])
pocket11 = body.newObject("PartDesign::Pocket", "Pocket010")
pocket11.Profile = sketch28
pocket11.Length = 6
pocket11.Reversed = True

# Sketch on XY plane
sketch29 = body.newObject("Sketcher::SketchObject", "Sketch028")
sketch29.AttachmentSupport = (doc.getObject("XY_Plane"), [""])
sketch29.MapMode = "FlatFace"
sketch29.addGeometry(Part.Circle(Vector(25.4, -10.5, 0), Vector(0, 0, 1), 2.5), False)
sketch29.addConstraint([
    Sketcher.Constraint("Diameter", 0, 5.0),
    Sketcher.Constraint("DistanceX", -1, 1, 0, 3, 25.406687),
    Sketcher.Constraint("DistanceY", 0, 3, -1, 1, 10.523794),
])
pocket12 = body.newObject("PartDesign::Pocket", "Pocket011")
pocket12.Profile = sketch29
pocket12.Length = 6
pocket12.Reversed = True

# Sketch on XY plane
sketch30 = body.newObject("Sketcher::SketchObject", "Sketch029")
sketch30.AttachmentSupport = (doc.getObject("XY_Plane"), [""])
sketch30.MapMode = "FlatFace"
sketch30.addGeometry(Part.Circle(Vector(27.5, 0, 0), Vector(0, 0, 1), 2.5), False)
sketch30.addConstraint([
    Sketcher.Constraint("PointOnObject", 0, 3, -1),
    Sketcher.Constraint("Diameter", 0, 5.0),
    Sketcher.Constraint("DistanceX", -1, 1, 0, 3, 27.5),
])
pocket13 = body.newObject("PartDesign::Pocket", "Pocket012")
pocket13.Profile = sketch30
pocket13.Length = 6
pocket13.Reversed = True

# Sketch on XY plane
sketch31 = body.newObject("Sketcher::SketchObject", "Sketch030")
sketch31.AttachmentSupport = (doc.getObject("XY_Plane"), [""])
sketch31.MapMode = "FlatFace"
sketch31.addGeometry(Part.Circle(Vector(25.4, 10.5, 0), Vector(0, 0, 1), 2.5), False)
sketch31.addConstraint([
    Sketcher.Constraint("Diameter", 0, 5.0),
    Sketcher.Constraint("DistanceX", -1, 1, 0, 3, 25.406687),
    Sketcher.Constraint("DistanceY", -1, 1, 0, 3, 10.523794),
])
pocket14 = body.newObject("PartDesign::Pocket", "Pocket013")
pocket14.Profile = sketch31
pocket14.Length = 6
pocket14.Reversed = True

# Sketch on XY plane
sketch32 = body.newObject("Sketcher::SketchObject", "Sketch031")
sketch32.AttachmentSupport = (doc.getObject("XY_Plane"), [""])
sketch32.MapMode = "FlatFace"
sketch32.addGeometry(Part.Circle(Vector(19.4, 19.4, 0), Vector(0, 0, 1), 2.5), False)
sketch32.addConstraint([
    Sketcher.Constraint("Diameter", 0, 5.0),
    Sketcher.Constraint("DistanceX", -1, 1, 0, 3, 19.445436),
    Sketcher.Constraint("DistanceY", -1, 1, 0, 3, 19.445436),
])
pocket15 = body.newObject("PartDesign::Pocket", "Pocket014")
pocket15.Profile = sketch32
pocket15.Length = 6
pocket15.Reversed = True

# Sketch on XY plane
sketch33 = body.newObject("Sketcher::SketchObject", "Sketch032")
sketch33.AttachmentSupport = (doc.getObject("XY_Plane"), [""])
sketch33.MapMode = "FlatFace"
sketch33.addGeometry(Part.Circle(Vector(10.5, 25.4, 0), Vector(0, 0, 1), 2.5), False)
sketch33.addConstraint([
    Sketcher.Constraint("Diameter", 0, 5.0),
    Sketcher.Constraint("DistanceX", -1, 1, 0, 3, 10.523794),
    Sketcher.Constraint("DistanceY", -1, 1, 0, 3, 25.406687),
])
pocket16 = body.newObject("PartDesign::Pocket", "Pocket015")
pocket16.Profile = sketch33
pocket16.Length = 6
pocket16.Reversed = True

# Sketch on XY plane
sketch34 = body.newObject("Sketcher::SketchObject", "Sketch033")
sketch34.AttachmentSupport = (doc.getObject("XY_Plane"), [""])
sketch34.MapMode = "FlatFace"
sketch34.addGeometry(Part.Circle(Vector(0, 27.5, 0), Vector(0, 0, 1), 1.7), False)
sketch34.addConstraint([
    Sketcher.Constraint("PointOnObject", 0, 3, -2),
    Sketcher.Constraint("Diameter", 0, 3.4),
    Sketcher.Constraint("DistanceY", -1, 1, 0, 3, 27.5),
])
doc.recompute()
hole17 = body.newObject("PartDesign::Hole", "Hole016")
hole17.Profile = sketch34
hole17.ThreadType = "None"
hole17.Diameter = 3.4
hole17.DepthType = "ThroughAll"
hole17.Reversed = True

doc.recompute()
